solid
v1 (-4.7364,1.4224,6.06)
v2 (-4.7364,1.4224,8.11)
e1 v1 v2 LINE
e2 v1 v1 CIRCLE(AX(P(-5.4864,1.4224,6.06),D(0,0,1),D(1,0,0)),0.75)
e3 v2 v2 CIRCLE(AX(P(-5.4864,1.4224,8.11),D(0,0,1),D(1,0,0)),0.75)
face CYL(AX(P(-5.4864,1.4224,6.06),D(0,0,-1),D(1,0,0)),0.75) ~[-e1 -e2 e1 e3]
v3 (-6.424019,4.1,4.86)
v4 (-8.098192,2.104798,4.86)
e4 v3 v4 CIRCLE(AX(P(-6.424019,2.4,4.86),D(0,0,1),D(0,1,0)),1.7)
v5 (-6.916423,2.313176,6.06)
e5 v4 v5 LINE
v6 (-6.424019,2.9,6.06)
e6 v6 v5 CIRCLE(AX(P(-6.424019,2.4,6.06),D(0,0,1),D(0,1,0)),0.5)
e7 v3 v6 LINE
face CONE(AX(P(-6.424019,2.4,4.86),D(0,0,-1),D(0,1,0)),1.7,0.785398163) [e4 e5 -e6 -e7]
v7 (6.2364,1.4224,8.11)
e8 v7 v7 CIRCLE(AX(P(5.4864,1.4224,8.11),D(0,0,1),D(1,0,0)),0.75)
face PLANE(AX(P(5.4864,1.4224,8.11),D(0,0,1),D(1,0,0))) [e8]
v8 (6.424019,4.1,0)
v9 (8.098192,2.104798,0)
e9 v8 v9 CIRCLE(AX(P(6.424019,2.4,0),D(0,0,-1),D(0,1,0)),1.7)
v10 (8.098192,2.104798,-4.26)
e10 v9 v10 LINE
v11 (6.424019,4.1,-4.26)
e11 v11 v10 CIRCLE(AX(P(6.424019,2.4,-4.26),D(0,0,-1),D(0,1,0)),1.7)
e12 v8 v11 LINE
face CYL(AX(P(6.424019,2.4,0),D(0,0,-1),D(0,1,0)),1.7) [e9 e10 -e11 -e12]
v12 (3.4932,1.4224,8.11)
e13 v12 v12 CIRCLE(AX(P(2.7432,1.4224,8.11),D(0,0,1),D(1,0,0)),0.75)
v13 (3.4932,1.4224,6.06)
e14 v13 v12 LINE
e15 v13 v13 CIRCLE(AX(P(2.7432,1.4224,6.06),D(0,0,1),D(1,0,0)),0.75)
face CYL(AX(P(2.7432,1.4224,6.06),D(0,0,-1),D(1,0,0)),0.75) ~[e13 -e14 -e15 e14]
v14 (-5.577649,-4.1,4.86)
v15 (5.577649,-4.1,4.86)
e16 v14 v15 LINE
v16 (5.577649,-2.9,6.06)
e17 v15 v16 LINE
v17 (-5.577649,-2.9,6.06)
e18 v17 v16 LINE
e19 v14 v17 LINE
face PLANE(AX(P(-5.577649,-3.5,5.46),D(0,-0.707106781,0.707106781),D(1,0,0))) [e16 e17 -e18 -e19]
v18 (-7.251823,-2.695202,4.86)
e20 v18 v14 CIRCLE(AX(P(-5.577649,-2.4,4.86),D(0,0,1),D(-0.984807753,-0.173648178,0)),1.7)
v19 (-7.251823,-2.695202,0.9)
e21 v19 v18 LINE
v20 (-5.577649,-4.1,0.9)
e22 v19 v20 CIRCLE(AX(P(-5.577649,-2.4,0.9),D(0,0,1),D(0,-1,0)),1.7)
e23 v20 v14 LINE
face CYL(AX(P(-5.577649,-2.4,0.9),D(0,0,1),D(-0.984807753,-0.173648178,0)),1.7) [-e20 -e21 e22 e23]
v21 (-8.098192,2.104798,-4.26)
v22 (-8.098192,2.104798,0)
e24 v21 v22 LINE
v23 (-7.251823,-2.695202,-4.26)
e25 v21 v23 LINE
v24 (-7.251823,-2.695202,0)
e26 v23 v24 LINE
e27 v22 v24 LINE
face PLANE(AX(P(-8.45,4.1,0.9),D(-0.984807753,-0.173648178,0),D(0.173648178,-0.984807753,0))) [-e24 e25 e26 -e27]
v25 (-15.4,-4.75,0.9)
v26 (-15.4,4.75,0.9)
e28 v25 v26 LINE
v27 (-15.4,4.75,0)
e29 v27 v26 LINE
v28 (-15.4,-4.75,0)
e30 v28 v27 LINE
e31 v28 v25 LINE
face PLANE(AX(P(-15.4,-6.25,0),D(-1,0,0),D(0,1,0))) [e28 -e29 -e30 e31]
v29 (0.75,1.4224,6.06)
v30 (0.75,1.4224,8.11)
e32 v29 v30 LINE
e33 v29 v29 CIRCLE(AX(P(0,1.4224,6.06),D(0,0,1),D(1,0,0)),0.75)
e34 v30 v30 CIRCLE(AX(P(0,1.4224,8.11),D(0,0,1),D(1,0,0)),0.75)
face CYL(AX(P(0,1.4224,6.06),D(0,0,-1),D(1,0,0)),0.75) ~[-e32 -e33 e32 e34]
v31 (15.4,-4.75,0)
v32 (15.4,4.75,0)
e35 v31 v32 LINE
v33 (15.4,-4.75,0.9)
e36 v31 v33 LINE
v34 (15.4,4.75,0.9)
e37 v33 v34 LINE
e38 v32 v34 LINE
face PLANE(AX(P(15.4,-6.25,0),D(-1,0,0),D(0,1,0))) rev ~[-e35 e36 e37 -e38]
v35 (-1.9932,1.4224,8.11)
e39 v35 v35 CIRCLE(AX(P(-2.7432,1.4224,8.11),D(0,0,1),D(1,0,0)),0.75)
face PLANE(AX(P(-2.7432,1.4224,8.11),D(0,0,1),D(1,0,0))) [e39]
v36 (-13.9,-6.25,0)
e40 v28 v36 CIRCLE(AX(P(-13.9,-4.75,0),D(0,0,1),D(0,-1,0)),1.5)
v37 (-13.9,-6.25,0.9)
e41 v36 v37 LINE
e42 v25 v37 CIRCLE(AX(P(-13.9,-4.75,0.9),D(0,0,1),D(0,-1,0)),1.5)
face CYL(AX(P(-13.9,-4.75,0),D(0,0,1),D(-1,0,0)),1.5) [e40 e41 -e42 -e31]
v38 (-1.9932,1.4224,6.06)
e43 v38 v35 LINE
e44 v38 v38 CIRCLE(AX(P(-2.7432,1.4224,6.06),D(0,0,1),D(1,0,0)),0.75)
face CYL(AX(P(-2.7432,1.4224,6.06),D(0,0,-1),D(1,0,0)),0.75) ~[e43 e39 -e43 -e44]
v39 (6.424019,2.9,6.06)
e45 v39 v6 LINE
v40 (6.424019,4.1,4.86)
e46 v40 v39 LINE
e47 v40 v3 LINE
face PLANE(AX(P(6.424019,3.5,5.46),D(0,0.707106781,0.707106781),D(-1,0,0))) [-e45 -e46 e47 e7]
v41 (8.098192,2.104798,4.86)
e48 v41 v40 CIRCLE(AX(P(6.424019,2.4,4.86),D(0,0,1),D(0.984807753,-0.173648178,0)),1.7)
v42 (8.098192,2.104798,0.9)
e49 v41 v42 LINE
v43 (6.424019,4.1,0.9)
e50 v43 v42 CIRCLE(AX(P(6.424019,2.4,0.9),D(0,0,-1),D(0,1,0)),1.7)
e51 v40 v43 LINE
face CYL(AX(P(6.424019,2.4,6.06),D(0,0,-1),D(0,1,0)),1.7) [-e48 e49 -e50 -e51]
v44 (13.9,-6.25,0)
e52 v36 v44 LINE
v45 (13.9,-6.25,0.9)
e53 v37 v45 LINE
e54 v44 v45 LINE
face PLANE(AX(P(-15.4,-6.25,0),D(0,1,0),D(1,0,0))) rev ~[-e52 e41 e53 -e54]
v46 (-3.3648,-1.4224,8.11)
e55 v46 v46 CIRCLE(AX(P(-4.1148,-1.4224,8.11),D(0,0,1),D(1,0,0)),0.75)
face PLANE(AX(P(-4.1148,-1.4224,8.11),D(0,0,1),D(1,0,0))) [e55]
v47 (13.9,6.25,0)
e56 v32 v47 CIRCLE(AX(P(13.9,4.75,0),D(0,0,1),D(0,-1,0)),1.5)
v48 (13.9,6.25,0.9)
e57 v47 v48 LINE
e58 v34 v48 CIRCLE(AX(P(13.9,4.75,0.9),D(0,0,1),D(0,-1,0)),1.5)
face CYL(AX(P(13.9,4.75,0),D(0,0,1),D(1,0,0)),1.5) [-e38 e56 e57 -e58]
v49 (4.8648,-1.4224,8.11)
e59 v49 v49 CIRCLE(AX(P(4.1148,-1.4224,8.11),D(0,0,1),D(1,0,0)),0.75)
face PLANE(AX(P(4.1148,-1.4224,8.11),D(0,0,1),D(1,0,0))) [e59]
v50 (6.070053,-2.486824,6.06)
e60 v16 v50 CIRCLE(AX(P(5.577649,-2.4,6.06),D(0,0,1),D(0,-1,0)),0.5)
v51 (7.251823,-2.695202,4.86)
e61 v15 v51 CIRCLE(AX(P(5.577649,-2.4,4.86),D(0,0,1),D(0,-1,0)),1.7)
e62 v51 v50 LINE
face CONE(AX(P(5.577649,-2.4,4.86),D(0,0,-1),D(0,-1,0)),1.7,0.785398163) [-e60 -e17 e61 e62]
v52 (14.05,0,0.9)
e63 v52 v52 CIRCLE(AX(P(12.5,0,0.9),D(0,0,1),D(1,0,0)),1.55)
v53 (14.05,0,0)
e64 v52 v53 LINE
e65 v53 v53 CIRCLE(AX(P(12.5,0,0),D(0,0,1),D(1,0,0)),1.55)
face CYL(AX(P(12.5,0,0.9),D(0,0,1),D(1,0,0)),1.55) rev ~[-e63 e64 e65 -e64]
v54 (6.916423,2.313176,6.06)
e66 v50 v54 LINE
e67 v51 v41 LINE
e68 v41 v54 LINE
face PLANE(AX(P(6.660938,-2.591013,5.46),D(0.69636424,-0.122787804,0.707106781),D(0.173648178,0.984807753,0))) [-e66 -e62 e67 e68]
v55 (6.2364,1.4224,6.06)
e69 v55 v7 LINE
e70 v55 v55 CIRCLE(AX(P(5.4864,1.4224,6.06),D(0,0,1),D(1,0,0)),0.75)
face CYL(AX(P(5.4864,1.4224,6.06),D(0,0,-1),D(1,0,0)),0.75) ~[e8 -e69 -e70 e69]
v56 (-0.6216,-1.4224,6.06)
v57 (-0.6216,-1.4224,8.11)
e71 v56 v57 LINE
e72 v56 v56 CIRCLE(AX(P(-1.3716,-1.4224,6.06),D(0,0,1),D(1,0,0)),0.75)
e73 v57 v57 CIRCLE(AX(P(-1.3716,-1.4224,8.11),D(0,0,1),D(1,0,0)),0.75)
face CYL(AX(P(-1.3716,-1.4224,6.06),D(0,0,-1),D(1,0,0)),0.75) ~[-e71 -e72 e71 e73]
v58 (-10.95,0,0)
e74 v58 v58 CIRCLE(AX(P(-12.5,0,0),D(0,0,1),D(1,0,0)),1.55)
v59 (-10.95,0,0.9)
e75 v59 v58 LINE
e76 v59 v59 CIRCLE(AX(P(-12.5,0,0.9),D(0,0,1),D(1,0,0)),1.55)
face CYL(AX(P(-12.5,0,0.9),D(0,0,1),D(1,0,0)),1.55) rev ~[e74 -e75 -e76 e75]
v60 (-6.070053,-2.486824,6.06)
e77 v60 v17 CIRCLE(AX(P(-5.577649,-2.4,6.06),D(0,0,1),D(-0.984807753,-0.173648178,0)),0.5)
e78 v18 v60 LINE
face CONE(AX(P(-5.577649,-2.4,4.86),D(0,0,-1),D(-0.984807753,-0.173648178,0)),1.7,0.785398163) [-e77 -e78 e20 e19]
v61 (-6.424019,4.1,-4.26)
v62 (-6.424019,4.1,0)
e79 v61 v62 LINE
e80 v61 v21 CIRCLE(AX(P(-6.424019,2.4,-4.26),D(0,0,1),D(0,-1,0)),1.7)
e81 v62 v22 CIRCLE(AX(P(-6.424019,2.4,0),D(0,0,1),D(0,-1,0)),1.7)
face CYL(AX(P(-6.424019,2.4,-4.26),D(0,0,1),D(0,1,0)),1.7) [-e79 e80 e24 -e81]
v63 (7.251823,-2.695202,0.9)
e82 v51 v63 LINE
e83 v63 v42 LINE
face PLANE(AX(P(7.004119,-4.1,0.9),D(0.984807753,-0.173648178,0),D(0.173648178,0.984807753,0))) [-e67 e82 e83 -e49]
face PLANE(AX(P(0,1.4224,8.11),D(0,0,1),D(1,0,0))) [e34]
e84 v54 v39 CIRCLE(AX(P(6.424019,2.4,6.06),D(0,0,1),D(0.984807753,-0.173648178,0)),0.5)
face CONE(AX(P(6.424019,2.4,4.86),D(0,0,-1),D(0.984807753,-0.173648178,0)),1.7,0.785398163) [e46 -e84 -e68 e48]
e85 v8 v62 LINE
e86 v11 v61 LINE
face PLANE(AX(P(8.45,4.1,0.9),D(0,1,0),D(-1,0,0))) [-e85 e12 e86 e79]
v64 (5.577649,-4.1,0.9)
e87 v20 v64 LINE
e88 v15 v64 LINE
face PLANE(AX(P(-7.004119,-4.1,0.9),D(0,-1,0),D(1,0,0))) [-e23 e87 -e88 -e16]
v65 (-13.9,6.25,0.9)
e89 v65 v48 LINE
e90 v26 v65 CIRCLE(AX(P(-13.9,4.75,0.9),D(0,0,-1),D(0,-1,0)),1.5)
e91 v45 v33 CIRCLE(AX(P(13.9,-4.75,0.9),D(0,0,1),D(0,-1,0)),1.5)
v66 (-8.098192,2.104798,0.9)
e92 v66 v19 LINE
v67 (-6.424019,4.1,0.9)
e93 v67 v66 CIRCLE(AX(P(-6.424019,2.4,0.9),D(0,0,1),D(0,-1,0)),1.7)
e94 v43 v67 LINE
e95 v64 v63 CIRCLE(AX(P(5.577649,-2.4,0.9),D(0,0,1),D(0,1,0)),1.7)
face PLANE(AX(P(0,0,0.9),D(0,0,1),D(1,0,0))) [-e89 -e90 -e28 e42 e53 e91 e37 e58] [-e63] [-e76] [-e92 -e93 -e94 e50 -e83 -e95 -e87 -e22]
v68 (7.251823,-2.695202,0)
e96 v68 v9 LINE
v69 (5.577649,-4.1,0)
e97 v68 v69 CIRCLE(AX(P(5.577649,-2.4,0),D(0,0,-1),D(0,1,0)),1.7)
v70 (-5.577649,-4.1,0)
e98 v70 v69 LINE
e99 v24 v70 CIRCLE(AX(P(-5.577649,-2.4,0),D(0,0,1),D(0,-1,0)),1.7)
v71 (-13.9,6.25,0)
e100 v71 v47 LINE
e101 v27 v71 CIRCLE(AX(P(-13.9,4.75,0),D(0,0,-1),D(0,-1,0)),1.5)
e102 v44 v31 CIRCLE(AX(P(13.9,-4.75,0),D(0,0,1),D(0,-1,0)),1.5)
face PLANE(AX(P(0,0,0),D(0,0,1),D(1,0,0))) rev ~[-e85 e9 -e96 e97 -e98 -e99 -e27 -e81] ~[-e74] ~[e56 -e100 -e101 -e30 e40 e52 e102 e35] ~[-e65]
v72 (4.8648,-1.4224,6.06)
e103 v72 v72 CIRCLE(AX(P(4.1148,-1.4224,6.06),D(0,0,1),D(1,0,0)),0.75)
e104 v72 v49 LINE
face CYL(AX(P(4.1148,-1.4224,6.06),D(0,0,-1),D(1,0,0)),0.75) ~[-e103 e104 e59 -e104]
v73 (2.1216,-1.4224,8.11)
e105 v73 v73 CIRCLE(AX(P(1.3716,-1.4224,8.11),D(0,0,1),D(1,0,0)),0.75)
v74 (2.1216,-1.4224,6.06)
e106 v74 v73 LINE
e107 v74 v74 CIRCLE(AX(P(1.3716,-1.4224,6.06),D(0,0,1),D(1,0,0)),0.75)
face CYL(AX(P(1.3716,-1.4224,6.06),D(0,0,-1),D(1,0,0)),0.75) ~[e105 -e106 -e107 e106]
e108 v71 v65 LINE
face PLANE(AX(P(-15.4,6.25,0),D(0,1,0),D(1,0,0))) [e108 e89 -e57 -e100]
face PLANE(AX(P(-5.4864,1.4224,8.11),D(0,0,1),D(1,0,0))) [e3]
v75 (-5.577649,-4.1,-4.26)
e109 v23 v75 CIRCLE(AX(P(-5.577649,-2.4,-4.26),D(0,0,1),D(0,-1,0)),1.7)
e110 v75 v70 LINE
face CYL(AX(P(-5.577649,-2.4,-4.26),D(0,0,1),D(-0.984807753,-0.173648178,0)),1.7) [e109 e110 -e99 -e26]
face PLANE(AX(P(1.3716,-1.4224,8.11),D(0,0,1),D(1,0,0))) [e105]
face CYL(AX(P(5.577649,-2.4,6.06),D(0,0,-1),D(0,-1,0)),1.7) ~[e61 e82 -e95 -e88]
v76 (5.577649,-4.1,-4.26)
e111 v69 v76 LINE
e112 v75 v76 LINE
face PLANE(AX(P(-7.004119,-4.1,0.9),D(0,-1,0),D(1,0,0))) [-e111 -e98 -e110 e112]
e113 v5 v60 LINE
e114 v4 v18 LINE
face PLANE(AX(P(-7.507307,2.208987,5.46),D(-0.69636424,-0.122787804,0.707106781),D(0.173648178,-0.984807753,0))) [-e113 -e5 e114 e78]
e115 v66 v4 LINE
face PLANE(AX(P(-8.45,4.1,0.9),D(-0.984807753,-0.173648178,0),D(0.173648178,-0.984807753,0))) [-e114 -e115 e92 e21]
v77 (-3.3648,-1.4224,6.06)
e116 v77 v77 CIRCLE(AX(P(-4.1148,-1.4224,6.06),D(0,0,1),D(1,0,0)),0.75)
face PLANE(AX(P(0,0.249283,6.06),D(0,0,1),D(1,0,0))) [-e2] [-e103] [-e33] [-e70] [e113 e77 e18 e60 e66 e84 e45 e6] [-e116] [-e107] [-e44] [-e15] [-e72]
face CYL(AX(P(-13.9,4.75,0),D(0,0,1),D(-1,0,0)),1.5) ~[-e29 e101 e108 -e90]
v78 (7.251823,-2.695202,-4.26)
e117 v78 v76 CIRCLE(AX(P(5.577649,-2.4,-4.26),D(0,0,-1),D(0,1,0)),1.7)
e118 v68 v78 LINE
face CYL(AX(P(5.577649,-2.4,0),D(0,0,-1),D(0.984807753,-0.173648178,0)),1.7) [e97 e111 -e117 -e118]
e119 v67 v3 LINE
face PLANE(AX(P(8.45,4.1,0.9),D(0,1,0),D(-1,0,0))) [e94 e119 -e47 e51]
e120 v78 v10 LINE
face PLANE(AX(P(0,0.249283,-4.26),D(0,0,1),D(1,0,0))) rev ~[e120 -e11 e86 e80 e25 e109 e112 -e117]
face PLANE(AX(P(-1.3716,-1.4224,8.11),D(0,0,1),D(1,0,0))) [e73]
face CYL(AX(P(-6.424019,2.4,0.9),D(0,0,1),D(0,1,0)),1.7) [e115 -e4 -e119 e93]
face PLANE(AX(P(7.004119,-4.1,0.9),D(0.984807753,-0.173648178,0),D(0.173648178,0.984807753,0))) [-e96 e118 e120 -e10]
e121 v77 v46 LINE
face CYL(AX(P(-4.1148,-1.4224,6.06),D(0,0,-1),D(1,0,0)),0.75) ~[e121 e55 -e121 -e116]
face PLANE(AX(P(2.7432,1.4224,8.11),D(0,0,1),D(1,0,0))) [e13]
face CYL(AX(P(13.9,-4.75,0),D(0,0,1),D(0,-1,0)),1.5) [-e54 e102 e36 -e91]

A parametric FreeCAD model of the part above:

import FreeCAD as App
import Part
import Sketcher
from FreeCAD import Vector
Q = App.Units.Quantity


def edges_at(feature, points):
    """Names of the edges that pass closest to the given points."""
    edges = feature.Shape.Edges
    near = lambda p: min(range(len(edges)), key=lambda i: edges[i].distToShape(Part.Vertex(*p))[0])
    return sorted({f"Edge{near(p) + 1}" for p in points})


def add_polygon(sketch, points):
    """Adds a closed chain of lines whose ends are joined by coincident constraints."""
    first, n = sketch.GeometryCount, len(points)
    for a, b in zip(points, points[1:] + points[:1]):
        sketch.addGeometry(Part.LineSegment(App.Vector(*a, 0), App.Vector(*b, 0)), False)
    for i in range(n):
        sketch.addConstraint(Sketcher.Constraint("Coincident", first + i, 2, first + (i + 1) % n, 1))

doc = App.newDocument("Part")
params = doc.addObject("Spreadsheet::Sheet", "Params")
for row, (alias, value) in enumerate([
    ("sketch1_width", "30.8 mm"),
    ("sketch1_height", "12.5 mm"),
    ("pad1_length", "0.9 mm"),
    ("fillet_radius", "1.5 mm"),
    ("sketch2_width", "16.9 mm"),
    ("pad2_length", "10.32 mm"),
    ("fillet2_radius", "1.7 mm"),
    ("chamfer_size", "1.2 mm"),
    ("sketch3_diameter", "1.5 mm"),
    ("pad3_length", "2.05 mm"),
    ("sketch4_diameter", "3.1 mm"),
    ("pocket1_length", "0.9 mm"),
], start=1):
    params.set(f"A{row}", alias)
    params.set(f"B{row}", "=" + value)
    params.setAlias(f"B{row}", alias)

body = doc.addObject("PartDesign::Body", "Body")

sketch1 = body.newObject("Sketcher::SketchObject", "Sketch")
sketch1.AttachmentSupport = (doc.getObject("XY_Plane"), [""])
sketch1.MapMode = "FlatFace"
add_polygon(sketch1, [(-15.4, 6.25), (-15.4, -6.25), (15.4, -6.25), (15.4, 6.25)])
sketch1.addConstraint(Sketcher.Constraint("Vertical", 0))
sketch1.addConstraint(Sketcher.Constraint("Horizontal", 1))
sketch1.addConstraint(Sketcher.Constraint("Vertical", 2))
sketch1.addConstraint(Sketcher.Constraint("Horizontal", 3))
sketch1.addConstraint(Sketcher.Constraint("Symmetric", 0, 2, 2, 2, -1, 1))
sketch1.addConstraint(Sketcher.Constraint("DistanceX", 1, 1, 1, 2, Q("30.8 mm")))
sketch1.addConstraint(Sketcher.Constraint("DistanceY", 0, 2, 0, 1, Q("12.5 mm")))
sketch1.setExpression("Constraints[9]", "Params.sketch1_width")
sketch1.setExpression("Constraints[10]", "Params.sketch1_height")
pad1 = body.newObject("PartDesign::Pad", "Pad")
pad1.Profile = sketch1
pad1.setExpression("Length", "Params.pad1_length")
doc.recompute()

fillet = body.newObject("PartDesign::Fillet", "Fillet")
fillet.Base = (pad1, edges_at(pad1, [
    (-15.4, 6.25, 0.45),
    (15.4, 6.25, 0.45),
    (15.4, -6.25, 0.45),
    (-15.4, -6.25, 0.45),
]))
fillet.setExpression("Radius", "Params.fillet_radius")

sketch2 = body.newObject("Sketcher::SketchObject", "Sketch001")
sketch2.AttachmentSupport = (doc.getObject("XY_Plane"), [""])
sketch2.MapMode = "FlatFace"
sketch2.AttachmentOffset = App.Placement(Vector(0, 0, 0.9), App.Rotation())
add_polygon(sketch2, [(8.45, 4.1), (-8.45, 4.1), (-7.004119, -4.1), (7.004119, -4.1)])
sketch2.addConstraint(Sketcher.Constraint("Horizontal", 0))
sketch2.addConstraint(Sketcher.Constraint("Horizontal", 2))
sketch2.addConstraint(Sketcher.Constraint("Equal", 1, 3))
sketch2.addConstraint(Sketcher.Constraint("Angle", 1, Q("-80 deg")))
sketch2.addConstraint(Sketcher.Constraint("DistanceX", 0, 2, 0, 1, Q("16.9 mm")))
sketch2.addConstraint(Sketcher.Constraint("DistanceY", -1, 1, 0, 2, Q("4.1 mm")))
sketch2.addConstraint(Sketcher.Constraint("DistanceY", 1, 2, -1, 1, Q("4.1 mm")))
sketch2.addConstraint(Sketcher.Constraint("DistanceX", 0, 2, -1, 1, Q("8.45 mm")))
sketch2.setExpression("Constraints[8]", "Params.sketch2_width")
pad2 = body.newObject("PartDesign::Pad", "Pad001")
pad2.Profile = sketch2
pad2.setExpression("Length", "Params.pad2_length")
pad2.Midplane = True
doc.recompute()

fillet2 = body.newObject("PartDesign::Fillet", "Fillet001")
fillet2.Base = (pad2, edges_at(pad2, [
    (-8.45, 4.1, -2.13),
    (-8.45, 4.1, 3.48),
    (8.45, 4.1, -2.13),
    (8.45, 4.1, 3.48),
    (-7.004, -4.1, -2.13),
    (-7.004, -4.1, 3.48),
    (7.004, -4.1, -2.13),
    (7.004, -4.1, 3.48),
]))
fillet2.setExpression("Radius", "Params.fillet2_radius")
doc.recompute()

chamfer = body.newObject("PartDesign::Chamfer", "Chamfer")
chamfer.Base = (fillet2, edges_at(fillet2, [(0, 4.1, 6.06)]))
chamfer.setExpression("Size", "Params.chamfer_size")

sketch3 = body.newObject("Sketcher::SketchObject", "Sketch002")
sketch3.AttachmentSupport = (doc.getObject("XY_Plane"), [""])
sketch3.MapMode = "FlatFace"
sketch3.AttachmentOffset = App.Placement(Vector(0, 0, 6.06), App.Rotation())
sketch3.addGeometry(Part.Circle(Vector(-5.4864, 1.4224, 0), Vector(0, 0, 1), 0.75), False)
sketch3.addGeometry(Part.Circle(Vector(-2.7432, 1.4224, 0), Vector(0, 0, 1), 0.75), False)
sketch3.addGeometry(Part.Circle(Vector(0, 1.4224, 0), Vector(0, 0, 1), 0.75), False)
sketch3.addGeometry(Part.Circle(Vector(2.7432, 1.4224, 0), Vector(0, 0, 1), 0.75), False)
sketch3.addGeometry(Part.Circle(Vector(5.4864, 1.4224, 0), Vector(0, 0, 1), 0.75), False)
sketch3.addGeometry(Part.Circle(Vector(4.1148, -1.4224, 0), Vector(0, 0, 1), 0.75), False)
sketch3.addGeometry(Part.Circle(Vector(1.3716, -1.4224, 0), Vector(0, 0, 1), 0.75), False)
sketch3.addGeometry(Part.Circle(Vector(-1.3716, -1.4224, 0), Vector(0, 0, 1), 0.75), False)
sketch3.addGeometry(Part.Circle(Vector(-4.1148, -1.4224, 0), Vector(0, 0, 1), 0.75), False)
sketch3.addConstraint(Sketcher.Constraint("Equal", 0, 1))
sketch3.addConstraint(Sketcher.Constraint("Equal", 1, 2))
sketch3.addConstraint(Sketcher.Constraint("Equal", 2, 3))
sketch3.addConstraint(Sketcher.Constraint("Equal", 3, 4))
sketch3.addConstraint(Sketcher.Constraint("Equal", 4, 5))
sketch3.addConstraint(Sketcher.Constraint("Equal", 5, 6))
sketch3.addConstraint(Sketcher.Constraint("Equal", 6, 7))
sketch3.addConstraint(Sketcher.Constraint("Equal", 7, 8))
sketch3.addConstraint(Sketcher.Constraint("Symmetric", 1, 3, 3, 3, -2))
sketch3.addConstraint(Sketcher.Constraint("Symmetric", 0, 3, 4, 3, -2))
sketch3.addConstraint(Sketcher.Constraint("Symmetric", 6, 3, 7, 3, -2))
sketch3.addConstraint(Sketcher.Constraint("Symmetric", 5, 3, 8, 3, -2))
sketch3.addConstraint(Sketcher.Constraint("PointOnObject", 2, 3, -2))
sketch3.addConstraint(Sketcher.Constraint("Horizontal", 0, 3, 1, 3))
sketch3.addConstraint(Sketcher.Constraint("Horizontal", 1, 3, 2, 3))
sketch3.addConstraint(Sketcher.Constraint("Horizontal", 5, 3, 6, 3))
sketch3.addConstraint(Sketcher.Constraint("Diameter", 0, Q("1.5 mm")))
sketch3.addConstraint(Sketcher.Constraint("DistanceX", 1, 3, 5, 3, Q("6.858 mm")))
sketch3.addConstraint(Sketcher.Constraint("DistanceX", 0, 3, -1, 1, Q("5.4864 mm")))
sketch3.addConstraint(Sketcher.Constraint("DistanceY", -1, 1, 0, 3, Q("1.4224 mm")))
sketch3.addConstraint(Sketcher.Constraint("DistanceX", 1, 3, -1, 1, Q("2.7432 mm")))
sketch3.addConstraint(Sketcher.Constraint("DistanceY", 5, 3, -1, 1, Q("1.4224 mm")))
sketch3.addConstraint(Sketcher.Constraint("DistanceX", -1, 1, 6, 3, Q("1.3716 mm")))
sketch3.setExpression("Constraints[16]", "Params.sketch3_diameter")
pad3 = body.newObject("PartDesign::Pad", "Pad002")
pad3.Profile = sketch3
pad3.setExpression("Length", "Params.pad3_length")

sketch4 = body.newObject("Sketcher::SketchObject", "Sketch003")
sketch4.AttachmentSupport = (doc.getObject("XY_Plane"), [""])
sketch4.MapMode = "FlatFace"
sketch4.AttachmentOffset = App.Placement(Vector(0, 0, 0.9), App.Rotation())
sketch4.addGeometry(Part.Circle(Vector(-12.5, 0, 0), Vector(0, 0, 1), 1.55), False)
sketch4.addGeometry(Part.Circle(Vector(12.5, 0, 0), Vector(0, 0, 1), 1.55), False)
sketch4.addConstraint(Sketcher.Constraint("Equal", 0, 1))
sketch4.addConstraint(Sketcher.Constraint("Symmetric", 0, 3, 1, 3, -1, 1))
sketch4.addConstraint(Sketcher.Constraint("PointOnObject", 0, 3, -1))
sketch4.addConstraint(Sketcher.Constraint("Diameter", 0, Q("3.1 mm")))
sketch4.addConstraint(Sketcher.Constraint("DistanceX", 0, 3, 1, 3, Q("25 mm")))
sketch4.setExpression("Constraints[3]", "Params.sketch4_diameter")
pocket1 = body.newObject("PartDesign::Pocket", "Pocket")
pocket1.Profile = sketch4
pocket1.setExpression("Length", "Params.pocket1_length")

doc.recompute()
